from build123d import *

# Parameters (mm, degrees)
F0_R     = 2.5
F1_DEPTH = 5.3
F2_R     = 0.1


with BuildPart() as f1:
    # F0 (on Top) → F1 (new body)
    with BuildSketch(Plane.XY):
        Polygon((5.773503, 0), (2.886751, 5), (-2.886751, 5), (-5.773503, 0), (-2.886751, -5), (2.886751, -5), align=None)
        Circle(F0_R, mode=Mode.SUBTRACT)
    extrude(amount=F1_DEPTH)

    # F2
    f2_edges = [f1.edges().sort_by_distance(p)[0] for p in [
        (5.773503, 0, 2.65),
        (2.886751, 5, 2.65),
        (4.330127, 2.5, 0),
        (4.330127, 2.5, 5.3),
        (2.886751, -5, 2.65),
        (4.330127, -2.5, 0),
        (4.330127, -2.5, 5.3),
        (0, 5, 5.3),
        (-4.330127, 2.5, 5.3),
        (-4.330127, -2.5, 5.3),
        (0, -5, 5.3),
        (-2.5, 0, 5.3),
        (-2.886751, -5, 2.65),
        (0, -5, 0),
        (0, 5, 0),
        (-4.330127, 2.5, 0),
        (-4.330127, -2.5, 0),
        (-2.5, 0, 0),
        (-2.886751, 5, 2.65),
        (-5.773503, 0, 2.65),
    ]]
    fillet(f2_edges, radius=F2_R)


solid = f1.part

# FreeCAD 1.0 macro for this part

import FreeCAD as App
import Part
import Sketcher

V = App.Vector
Q = App.Units.Quantity

doc = App.newDocument("Part")
body = doc.addObject("PartDesign::Body", "Body")

sketch1 = body.newObject("Sketcher::SketchObject", "Sketch")
sketch1.AttachmentSupport = (doc.getObject("XY_Plane"), [""])
sketch1.MapMode = "FlatFace"
sketch1.addGeometry([
    Part.LineSegment(V(5.773503, 0, 0), V(2.886751, 5, 0)),
    Part.LineSegment(V(2.886751, 5, 0), V(-2.886751, 5, 0)),
    Part.LineSegment(V(-2.886751, 5, 0), V(-5.773503, 0, 0)),
    Part.LineSegment(V(-5.773503, 0, 0), V(-2.886751, -5, 0)),
    Part.LineSegment(V(-2.886751, -5, 0), V(2.886751, -5, 0)),
    Part.LineSegment(V(2.886751, -5, 0), V(5.773503, 0, 0)),
    Part.Circle(V(0, 0, 0), V(0, 0, 1), 2.5),
], False)
sketch1.addConstraint([
    Sketcher.Constraint("Coincident", 0, 2, 1, 1),
    Sketcher.Constraint("Coincident", 1, 2, 2, 1),
    Sketcher.Constraint("Coincident", 2, 2, 3, 1),
    Sketcher.Constraint("Coincident", 3, 2, 4, 1),
    Sketcher.Constraint("Coincident", 4, 2, 5, 1),
    Sketcher.Constraint("Coincident", 5, 2, 0, 1),
    Sketcher.Constraint("Horizontal", 1),
    Sketcher.Constraint("Horizontal", 4),
    Sketcher.Constraint("Coincident", 6, 3, -1, 1),
    Sketcher.Constraint("Symmetric", 0, 2, 3, 2, -1, 1),
    Sketcher.Constraint("Symmetric", 2, 2, 5, 2, -1, 1),
    Sketcher.Constraint("PointOnObject", 2, 2, -1),
    Sketcher.Constraint("Parallel", 2, 5),
    Sketcher.Constraint("Vertical", 1, 2, 3, 2),
    Sketcher.Constraint("Diameter", 6, Q("5 mm")),
    Sketcher.Constraint("Angle", 0, Q("120.000006 deg")),
    Sketcher.Constraint("DistanceY", -1, 1, 0, 2, Q("5 mm")),
    Sketcher.Constraint("DistanceX", 1, 2, 1, 1, Q("5.773502 mm")),
])
pad1 = body.newObject("PartDesign::Pad", "Pad")
pad1.Profile = sketch1
pad1.Length = 5.3
doc.recompute()

fillet = body.newObject("PartDesign::Fillet", "Fillet")
fillet.Base = (pad1, ["Edge1"])
fillet.UseAllEdges = True
fillet.Radius = 0.1

doc.recompute()
